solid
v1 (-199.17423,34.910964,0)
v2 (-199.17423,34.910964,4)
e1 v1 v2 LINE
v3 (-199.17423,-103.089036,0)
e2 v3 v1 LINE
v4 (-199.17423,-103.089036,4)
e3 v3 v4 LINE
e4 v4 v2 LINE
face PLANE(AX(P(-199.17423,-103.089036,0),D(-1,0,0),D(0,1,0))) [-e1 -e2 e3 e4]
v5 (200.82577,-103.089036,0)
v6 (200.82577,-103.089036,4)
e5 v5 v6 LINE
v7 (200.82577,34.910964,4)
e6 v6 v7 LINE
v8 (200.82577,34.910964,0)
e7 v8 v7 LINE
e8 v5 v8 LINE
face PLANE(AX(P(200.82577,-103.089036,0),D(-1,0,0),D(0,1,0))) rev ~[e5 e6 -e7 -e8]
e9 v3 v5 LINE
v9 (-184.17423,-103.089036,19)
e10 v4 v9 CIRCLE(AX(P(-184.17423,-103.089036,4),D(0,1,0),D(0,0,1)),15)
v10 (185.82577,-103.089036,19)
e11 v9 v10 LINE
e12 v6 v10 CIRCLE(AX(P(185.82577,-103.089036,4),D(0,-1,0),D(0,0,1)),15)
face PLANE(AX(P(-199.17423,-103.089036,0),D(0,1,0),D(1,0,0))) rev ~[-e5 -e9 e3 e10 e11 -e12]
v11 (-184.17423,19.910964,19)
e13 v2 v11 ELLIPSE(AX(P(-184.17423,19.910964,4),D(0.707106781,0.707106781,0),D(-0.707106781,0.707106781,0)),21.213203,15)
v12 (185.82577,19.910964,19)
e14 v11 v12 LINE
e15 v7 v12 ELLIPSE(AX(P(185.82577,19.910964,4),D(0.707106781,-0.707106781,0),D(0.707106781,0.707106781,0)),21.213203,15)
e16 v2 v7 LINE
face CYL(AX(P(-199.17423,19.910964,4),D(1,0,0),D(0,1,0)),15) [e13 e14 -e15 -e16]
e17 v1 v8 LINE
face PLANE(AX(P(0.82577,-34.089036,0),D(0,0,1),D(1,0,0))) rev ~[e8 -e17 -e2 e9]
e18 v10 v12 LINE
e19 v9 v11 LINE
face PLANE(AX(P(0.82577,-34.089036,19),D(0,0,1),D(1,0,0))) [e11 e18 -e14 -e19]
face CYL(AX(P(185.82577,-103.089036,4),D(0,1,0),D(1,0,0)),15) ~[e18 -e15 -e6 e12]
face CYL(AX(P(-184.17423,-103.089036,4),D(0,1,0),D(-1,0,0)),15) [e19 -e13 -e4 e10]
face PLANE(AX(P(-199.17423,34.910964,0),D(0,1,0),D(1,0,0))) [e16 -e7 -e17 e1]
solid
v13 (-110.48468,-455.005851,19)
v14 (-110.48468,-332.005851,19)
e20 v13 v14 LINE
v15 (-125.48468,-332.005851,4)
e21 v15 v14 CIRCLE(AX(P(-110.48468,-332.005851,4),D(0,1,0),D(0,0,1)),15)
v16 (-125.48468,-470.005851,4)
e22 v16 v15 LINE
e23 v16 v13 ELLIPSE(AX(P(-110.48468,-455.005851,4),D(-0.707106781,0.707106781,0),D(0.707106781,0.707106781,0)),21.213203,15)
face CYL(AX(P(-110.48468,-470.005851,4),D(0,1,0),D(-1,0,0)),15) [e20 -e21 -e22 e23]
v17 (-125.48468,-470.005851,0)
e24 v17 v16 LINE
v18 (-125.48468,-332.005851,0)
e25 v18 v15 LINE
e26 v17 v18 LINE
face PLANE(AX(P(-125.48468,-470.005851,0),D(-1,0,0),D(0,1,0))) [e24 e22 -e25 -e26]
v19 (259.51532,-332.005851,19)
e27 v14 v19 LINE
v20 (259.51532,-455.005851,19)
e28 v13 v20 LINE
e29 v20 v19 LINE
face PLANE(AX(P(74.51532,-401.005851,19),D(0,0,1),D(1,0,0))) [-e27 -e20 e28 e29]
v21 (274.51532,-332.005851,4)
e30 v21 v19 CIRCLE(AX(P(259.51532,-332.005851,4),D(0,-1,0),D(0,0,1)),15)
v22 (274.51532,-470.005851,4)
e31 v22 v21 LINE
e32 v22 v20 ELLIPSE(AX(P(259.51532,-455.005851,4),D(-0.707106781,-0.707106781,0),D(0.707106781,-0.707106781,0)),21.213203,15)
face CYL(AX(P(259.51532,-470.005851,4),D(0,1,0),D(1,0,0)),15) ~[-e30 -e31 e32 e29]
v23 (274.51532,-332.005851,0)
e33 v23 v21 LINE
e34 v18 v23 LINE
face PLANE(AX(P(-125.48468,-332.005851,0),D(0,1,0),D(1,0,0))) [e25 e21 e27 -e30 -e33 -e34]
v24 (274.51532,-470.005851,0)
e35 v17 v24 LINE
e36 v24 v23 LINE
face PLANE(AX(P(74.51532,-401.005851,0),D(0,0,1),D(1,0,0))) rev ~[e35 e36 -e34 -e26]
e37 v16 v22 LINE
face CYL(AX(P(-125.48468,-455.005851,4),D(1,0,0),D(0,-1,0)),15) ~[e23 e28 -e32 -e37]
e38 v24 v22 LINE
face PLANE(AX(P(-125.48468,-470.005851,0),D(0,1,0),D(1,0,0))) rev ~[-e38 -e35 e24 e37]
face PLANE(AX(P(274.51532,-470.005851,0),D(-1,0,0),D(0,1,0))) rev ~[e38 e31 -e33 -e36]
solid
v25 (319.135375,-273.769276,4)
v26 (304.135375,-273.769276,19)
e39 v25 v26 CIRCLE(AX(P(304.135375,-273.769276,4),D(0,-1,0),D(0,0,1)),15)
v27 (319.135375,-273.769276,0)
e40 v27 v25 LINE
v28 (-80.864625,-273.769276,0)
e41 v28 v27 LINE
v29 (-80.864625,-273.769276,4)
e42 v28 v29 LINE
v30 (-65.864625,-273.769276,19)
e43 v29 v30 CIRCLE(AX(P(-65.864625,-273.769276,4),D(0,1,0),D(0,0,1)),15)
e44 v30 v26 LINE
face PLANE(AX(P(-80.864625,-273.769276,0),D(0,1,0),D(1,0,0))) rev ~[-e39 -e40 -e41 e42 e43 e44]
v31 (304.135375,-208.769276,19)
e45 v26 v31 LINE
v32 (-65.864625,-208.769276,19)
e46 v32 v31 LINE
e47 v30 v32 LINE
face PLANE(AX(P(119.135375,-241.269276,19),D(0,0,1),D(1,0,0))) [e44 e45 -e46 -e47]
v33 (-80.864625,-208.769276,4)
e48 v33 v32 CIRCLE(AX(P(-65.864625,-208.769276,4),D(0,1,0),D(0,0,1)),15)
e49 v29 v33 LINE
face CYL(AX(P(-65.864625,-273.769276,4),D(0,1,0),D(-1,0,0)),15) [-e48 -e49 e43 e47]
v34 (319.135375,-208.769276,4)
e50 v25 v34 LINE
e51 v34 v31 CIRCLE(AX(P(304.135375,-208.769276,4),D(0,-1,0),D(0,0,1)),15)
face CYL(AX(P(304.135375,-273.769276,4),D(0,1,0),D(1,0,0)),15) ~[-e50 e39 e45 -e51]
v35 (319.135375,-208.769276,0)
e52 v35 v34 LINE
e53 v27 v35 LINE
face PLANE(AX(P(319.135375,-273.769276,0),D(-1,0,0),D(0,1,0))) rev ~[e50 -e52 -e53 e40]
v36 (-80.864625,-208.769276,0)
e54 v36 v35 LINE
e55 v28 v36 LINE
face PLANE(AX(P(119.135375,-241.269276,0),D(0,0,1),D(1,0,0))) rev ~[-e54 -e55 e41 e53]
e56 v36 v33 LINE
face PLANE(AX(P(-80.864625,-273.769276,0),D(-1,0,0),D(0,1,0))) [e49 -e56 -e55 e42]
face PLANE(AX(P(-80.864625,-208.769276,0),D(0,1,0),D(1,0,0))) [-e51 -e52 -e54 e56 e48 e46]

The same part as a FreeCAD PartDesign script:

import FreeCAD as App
import Part
import Sketcher
from FreeCAD import Vector


def edges_at(feature, points):
    """Names of the edges that pass closest to the given points."""
    edges = feature.Shape.Edges
    near = lambda p: min(range(len(edges)), key=lambda i: edges[i].distToShape(Part.Vertex(*p))[0])
    return sorted({f"Edge{near(p) + 1}" for p in points})


def add_polygon(sketch, points):
    """Adds a closed chain of lines whose ends are joined by coincident constraints."""
    first, n = sketch.GeometryCount, len(points)
    for a, b in zip(points, points[1:] + points[:1]):
        sketch.addGeometry(Part.LineSegment(App.Vector(*a, 0), App.Vector(*b, 0)), False)
    for i in range(n):
        sketch.addConstraint(Sketcher.Constraint("Coincident", first + i, 2, first + (i + 1) % n, 1))

doc = App.newDocument("Part")
body = doc.addObject("PartDesign::Body", "Body")

# Sketch on XY plane
sketch1 = doc.addObject("Sketcher::SketchObject", "Sketch")
body.addObject(sketch1)
sketch1.AttachmentSupport = (doc.XY_Plane, [""])
sketch1.MapMode = "FlatFace"
add_polygon(sketch1, [(-199, 35), (-199, -103), (201, -103), (201, 35)])  # lines 0-3
sketch1.addConstraint([
    Sketcher.Constraint("Vertical", 0),
    Sketcher.Constraint("Horizontal", 1),
    Sketcher.Constraint("Vertical", 2),
    Sketcher.Constraint("Horizontal", 3),
    Sketcher.Constraint("DistanceX", 1, 1, 1, 2, 400.0),
    Sketcher.Constraint("DistanceY", 0, 2, 0, 1, 138.0),
    Sketcher.Constraint("DistanceX", 0, 2, -1, 1, 199.17423),
    Sketcher.Constraint("DistanceY", 0, 2, -1, 1, 103.089036),
])
pad1 = doc.addObject("PartDesign::Pad", "Pad")
body.addObject(pad1)
pad1.Profile = sketch1
pad1.Length = 19
doc.recompute()

fillet = doc.addObject("PartDesign::Fillet", "Fillet")
body.addObject(fillet)
fillet.Base = (pad1, edges_at(pad1, [(-199.174, -34.089, 19), (0.826, 34.911, 19), (200.826, -34.089, 19)]))
fillet.Radius = 15
body2 = doc.addObject("PartDesign::Body", "Body001")

# Sketch on XY plane
sketch2 = doc.addObject("Sketcher::SketchObject", "Sketch001")
body2.addObject(sketch2)
sketch2.AttachmentSupport = (doc.getObject("XY_Plane001"), [""])
sketch2.MapMode = "FlatFace"
add_polygon(sketch2, [(-81, -209), (-81, -274), (319, -274), (319, -209)])  # lines 0-3
sketch2.addConstraint([
    Sketcher.Constraint("Vertical", 0),
    Sketcher.Constraint("Horizontal", 1),
    Sketcher.Constraint("Vertical", 2),
    Sketcher.Constraint("Horizontal", 3),
    Sketcher.Constraint("DistanceX", 1, 1, 1, 2, 400.0),
    Sketcher.Constraint("DistanceY", 0, 2, 0, 1, 65.0),
    Sketcher.Constraint("DistanceX", 0, 2, -1, 1, 80.864625),
    Sketcher.Constraint("DistanceY", 0, 2, -1, 1, 273.769276),
])
pad2 = doc.addObject("PartDesign::Pad", "Pad001")
body2.addObject(pad2)
pad2.Profile = sketch2
pad2.Length = 19
doc.recompute()

fillet2 = doc.addObject("PartDesign::Fillet", "Fillet001")
body2.addObject(fillet2)
fillet2.Base = (pad2, edges_at(pad2, [(319.135, -241.269, 19), (-80.865, -241.269, 19)]))
fillet2.Radius = 15
body3 = doc.addObject("PartDesign::Body", "Body002")

# Sketch on XY plane
sketch3 = doc.addObject("Sketcher::SketchObject", "Sketch002")
body3.addObject(sketch3)
sketch3.AttachmentSupport = (doc.getObject("XY_Plane002"), [""])
sketch3.MapMode = "FlatFace"
add_polygon(sketch3, [(-125, -332), (-125, -470), (275, -470), (275, -332)])  # lines 0-3
sketch3.addConstraint([
    Sketcher.Constraint("Vertical", 0),
    Sketcher.Constraint("Horizontal", 1),
    Sketcher.Constraint("Vertical", 2),
    Sketcher.Constraint("Horizontal", 3),
    Sketcher.Constraint("DistanceX", 1, 1, 1, 2, 400.0),
    Sketcher.Constraint("DistanceY", 0, 2, 0, 1, 138.0),
    Sketcher.Constraint("DistanceX", 0, 2, -1, 1, 125.48468),
    Sketcher.Constraint("DistanceY", 0, 2, -1, 1, 470.005851),
])
pad3 = doc.addObject("PartDesign::Pad", "Pad002")
body3.addObject(pad3)
pad3.Profile = sketch3
pad3.Length = 19
doc.recompute()

fillet3 = doc.addObject("PartDesign::Fillet", "Fillet002")
body3.addObject(fillet3)
fillet3.Base = (pad3, edges_at(pad3, [(-125.485, -401.006, 19), (74.515, -470.006, 19), (274.515, -401.006, 19)]))
fillet3.Radius = 15

doc.recompute()
